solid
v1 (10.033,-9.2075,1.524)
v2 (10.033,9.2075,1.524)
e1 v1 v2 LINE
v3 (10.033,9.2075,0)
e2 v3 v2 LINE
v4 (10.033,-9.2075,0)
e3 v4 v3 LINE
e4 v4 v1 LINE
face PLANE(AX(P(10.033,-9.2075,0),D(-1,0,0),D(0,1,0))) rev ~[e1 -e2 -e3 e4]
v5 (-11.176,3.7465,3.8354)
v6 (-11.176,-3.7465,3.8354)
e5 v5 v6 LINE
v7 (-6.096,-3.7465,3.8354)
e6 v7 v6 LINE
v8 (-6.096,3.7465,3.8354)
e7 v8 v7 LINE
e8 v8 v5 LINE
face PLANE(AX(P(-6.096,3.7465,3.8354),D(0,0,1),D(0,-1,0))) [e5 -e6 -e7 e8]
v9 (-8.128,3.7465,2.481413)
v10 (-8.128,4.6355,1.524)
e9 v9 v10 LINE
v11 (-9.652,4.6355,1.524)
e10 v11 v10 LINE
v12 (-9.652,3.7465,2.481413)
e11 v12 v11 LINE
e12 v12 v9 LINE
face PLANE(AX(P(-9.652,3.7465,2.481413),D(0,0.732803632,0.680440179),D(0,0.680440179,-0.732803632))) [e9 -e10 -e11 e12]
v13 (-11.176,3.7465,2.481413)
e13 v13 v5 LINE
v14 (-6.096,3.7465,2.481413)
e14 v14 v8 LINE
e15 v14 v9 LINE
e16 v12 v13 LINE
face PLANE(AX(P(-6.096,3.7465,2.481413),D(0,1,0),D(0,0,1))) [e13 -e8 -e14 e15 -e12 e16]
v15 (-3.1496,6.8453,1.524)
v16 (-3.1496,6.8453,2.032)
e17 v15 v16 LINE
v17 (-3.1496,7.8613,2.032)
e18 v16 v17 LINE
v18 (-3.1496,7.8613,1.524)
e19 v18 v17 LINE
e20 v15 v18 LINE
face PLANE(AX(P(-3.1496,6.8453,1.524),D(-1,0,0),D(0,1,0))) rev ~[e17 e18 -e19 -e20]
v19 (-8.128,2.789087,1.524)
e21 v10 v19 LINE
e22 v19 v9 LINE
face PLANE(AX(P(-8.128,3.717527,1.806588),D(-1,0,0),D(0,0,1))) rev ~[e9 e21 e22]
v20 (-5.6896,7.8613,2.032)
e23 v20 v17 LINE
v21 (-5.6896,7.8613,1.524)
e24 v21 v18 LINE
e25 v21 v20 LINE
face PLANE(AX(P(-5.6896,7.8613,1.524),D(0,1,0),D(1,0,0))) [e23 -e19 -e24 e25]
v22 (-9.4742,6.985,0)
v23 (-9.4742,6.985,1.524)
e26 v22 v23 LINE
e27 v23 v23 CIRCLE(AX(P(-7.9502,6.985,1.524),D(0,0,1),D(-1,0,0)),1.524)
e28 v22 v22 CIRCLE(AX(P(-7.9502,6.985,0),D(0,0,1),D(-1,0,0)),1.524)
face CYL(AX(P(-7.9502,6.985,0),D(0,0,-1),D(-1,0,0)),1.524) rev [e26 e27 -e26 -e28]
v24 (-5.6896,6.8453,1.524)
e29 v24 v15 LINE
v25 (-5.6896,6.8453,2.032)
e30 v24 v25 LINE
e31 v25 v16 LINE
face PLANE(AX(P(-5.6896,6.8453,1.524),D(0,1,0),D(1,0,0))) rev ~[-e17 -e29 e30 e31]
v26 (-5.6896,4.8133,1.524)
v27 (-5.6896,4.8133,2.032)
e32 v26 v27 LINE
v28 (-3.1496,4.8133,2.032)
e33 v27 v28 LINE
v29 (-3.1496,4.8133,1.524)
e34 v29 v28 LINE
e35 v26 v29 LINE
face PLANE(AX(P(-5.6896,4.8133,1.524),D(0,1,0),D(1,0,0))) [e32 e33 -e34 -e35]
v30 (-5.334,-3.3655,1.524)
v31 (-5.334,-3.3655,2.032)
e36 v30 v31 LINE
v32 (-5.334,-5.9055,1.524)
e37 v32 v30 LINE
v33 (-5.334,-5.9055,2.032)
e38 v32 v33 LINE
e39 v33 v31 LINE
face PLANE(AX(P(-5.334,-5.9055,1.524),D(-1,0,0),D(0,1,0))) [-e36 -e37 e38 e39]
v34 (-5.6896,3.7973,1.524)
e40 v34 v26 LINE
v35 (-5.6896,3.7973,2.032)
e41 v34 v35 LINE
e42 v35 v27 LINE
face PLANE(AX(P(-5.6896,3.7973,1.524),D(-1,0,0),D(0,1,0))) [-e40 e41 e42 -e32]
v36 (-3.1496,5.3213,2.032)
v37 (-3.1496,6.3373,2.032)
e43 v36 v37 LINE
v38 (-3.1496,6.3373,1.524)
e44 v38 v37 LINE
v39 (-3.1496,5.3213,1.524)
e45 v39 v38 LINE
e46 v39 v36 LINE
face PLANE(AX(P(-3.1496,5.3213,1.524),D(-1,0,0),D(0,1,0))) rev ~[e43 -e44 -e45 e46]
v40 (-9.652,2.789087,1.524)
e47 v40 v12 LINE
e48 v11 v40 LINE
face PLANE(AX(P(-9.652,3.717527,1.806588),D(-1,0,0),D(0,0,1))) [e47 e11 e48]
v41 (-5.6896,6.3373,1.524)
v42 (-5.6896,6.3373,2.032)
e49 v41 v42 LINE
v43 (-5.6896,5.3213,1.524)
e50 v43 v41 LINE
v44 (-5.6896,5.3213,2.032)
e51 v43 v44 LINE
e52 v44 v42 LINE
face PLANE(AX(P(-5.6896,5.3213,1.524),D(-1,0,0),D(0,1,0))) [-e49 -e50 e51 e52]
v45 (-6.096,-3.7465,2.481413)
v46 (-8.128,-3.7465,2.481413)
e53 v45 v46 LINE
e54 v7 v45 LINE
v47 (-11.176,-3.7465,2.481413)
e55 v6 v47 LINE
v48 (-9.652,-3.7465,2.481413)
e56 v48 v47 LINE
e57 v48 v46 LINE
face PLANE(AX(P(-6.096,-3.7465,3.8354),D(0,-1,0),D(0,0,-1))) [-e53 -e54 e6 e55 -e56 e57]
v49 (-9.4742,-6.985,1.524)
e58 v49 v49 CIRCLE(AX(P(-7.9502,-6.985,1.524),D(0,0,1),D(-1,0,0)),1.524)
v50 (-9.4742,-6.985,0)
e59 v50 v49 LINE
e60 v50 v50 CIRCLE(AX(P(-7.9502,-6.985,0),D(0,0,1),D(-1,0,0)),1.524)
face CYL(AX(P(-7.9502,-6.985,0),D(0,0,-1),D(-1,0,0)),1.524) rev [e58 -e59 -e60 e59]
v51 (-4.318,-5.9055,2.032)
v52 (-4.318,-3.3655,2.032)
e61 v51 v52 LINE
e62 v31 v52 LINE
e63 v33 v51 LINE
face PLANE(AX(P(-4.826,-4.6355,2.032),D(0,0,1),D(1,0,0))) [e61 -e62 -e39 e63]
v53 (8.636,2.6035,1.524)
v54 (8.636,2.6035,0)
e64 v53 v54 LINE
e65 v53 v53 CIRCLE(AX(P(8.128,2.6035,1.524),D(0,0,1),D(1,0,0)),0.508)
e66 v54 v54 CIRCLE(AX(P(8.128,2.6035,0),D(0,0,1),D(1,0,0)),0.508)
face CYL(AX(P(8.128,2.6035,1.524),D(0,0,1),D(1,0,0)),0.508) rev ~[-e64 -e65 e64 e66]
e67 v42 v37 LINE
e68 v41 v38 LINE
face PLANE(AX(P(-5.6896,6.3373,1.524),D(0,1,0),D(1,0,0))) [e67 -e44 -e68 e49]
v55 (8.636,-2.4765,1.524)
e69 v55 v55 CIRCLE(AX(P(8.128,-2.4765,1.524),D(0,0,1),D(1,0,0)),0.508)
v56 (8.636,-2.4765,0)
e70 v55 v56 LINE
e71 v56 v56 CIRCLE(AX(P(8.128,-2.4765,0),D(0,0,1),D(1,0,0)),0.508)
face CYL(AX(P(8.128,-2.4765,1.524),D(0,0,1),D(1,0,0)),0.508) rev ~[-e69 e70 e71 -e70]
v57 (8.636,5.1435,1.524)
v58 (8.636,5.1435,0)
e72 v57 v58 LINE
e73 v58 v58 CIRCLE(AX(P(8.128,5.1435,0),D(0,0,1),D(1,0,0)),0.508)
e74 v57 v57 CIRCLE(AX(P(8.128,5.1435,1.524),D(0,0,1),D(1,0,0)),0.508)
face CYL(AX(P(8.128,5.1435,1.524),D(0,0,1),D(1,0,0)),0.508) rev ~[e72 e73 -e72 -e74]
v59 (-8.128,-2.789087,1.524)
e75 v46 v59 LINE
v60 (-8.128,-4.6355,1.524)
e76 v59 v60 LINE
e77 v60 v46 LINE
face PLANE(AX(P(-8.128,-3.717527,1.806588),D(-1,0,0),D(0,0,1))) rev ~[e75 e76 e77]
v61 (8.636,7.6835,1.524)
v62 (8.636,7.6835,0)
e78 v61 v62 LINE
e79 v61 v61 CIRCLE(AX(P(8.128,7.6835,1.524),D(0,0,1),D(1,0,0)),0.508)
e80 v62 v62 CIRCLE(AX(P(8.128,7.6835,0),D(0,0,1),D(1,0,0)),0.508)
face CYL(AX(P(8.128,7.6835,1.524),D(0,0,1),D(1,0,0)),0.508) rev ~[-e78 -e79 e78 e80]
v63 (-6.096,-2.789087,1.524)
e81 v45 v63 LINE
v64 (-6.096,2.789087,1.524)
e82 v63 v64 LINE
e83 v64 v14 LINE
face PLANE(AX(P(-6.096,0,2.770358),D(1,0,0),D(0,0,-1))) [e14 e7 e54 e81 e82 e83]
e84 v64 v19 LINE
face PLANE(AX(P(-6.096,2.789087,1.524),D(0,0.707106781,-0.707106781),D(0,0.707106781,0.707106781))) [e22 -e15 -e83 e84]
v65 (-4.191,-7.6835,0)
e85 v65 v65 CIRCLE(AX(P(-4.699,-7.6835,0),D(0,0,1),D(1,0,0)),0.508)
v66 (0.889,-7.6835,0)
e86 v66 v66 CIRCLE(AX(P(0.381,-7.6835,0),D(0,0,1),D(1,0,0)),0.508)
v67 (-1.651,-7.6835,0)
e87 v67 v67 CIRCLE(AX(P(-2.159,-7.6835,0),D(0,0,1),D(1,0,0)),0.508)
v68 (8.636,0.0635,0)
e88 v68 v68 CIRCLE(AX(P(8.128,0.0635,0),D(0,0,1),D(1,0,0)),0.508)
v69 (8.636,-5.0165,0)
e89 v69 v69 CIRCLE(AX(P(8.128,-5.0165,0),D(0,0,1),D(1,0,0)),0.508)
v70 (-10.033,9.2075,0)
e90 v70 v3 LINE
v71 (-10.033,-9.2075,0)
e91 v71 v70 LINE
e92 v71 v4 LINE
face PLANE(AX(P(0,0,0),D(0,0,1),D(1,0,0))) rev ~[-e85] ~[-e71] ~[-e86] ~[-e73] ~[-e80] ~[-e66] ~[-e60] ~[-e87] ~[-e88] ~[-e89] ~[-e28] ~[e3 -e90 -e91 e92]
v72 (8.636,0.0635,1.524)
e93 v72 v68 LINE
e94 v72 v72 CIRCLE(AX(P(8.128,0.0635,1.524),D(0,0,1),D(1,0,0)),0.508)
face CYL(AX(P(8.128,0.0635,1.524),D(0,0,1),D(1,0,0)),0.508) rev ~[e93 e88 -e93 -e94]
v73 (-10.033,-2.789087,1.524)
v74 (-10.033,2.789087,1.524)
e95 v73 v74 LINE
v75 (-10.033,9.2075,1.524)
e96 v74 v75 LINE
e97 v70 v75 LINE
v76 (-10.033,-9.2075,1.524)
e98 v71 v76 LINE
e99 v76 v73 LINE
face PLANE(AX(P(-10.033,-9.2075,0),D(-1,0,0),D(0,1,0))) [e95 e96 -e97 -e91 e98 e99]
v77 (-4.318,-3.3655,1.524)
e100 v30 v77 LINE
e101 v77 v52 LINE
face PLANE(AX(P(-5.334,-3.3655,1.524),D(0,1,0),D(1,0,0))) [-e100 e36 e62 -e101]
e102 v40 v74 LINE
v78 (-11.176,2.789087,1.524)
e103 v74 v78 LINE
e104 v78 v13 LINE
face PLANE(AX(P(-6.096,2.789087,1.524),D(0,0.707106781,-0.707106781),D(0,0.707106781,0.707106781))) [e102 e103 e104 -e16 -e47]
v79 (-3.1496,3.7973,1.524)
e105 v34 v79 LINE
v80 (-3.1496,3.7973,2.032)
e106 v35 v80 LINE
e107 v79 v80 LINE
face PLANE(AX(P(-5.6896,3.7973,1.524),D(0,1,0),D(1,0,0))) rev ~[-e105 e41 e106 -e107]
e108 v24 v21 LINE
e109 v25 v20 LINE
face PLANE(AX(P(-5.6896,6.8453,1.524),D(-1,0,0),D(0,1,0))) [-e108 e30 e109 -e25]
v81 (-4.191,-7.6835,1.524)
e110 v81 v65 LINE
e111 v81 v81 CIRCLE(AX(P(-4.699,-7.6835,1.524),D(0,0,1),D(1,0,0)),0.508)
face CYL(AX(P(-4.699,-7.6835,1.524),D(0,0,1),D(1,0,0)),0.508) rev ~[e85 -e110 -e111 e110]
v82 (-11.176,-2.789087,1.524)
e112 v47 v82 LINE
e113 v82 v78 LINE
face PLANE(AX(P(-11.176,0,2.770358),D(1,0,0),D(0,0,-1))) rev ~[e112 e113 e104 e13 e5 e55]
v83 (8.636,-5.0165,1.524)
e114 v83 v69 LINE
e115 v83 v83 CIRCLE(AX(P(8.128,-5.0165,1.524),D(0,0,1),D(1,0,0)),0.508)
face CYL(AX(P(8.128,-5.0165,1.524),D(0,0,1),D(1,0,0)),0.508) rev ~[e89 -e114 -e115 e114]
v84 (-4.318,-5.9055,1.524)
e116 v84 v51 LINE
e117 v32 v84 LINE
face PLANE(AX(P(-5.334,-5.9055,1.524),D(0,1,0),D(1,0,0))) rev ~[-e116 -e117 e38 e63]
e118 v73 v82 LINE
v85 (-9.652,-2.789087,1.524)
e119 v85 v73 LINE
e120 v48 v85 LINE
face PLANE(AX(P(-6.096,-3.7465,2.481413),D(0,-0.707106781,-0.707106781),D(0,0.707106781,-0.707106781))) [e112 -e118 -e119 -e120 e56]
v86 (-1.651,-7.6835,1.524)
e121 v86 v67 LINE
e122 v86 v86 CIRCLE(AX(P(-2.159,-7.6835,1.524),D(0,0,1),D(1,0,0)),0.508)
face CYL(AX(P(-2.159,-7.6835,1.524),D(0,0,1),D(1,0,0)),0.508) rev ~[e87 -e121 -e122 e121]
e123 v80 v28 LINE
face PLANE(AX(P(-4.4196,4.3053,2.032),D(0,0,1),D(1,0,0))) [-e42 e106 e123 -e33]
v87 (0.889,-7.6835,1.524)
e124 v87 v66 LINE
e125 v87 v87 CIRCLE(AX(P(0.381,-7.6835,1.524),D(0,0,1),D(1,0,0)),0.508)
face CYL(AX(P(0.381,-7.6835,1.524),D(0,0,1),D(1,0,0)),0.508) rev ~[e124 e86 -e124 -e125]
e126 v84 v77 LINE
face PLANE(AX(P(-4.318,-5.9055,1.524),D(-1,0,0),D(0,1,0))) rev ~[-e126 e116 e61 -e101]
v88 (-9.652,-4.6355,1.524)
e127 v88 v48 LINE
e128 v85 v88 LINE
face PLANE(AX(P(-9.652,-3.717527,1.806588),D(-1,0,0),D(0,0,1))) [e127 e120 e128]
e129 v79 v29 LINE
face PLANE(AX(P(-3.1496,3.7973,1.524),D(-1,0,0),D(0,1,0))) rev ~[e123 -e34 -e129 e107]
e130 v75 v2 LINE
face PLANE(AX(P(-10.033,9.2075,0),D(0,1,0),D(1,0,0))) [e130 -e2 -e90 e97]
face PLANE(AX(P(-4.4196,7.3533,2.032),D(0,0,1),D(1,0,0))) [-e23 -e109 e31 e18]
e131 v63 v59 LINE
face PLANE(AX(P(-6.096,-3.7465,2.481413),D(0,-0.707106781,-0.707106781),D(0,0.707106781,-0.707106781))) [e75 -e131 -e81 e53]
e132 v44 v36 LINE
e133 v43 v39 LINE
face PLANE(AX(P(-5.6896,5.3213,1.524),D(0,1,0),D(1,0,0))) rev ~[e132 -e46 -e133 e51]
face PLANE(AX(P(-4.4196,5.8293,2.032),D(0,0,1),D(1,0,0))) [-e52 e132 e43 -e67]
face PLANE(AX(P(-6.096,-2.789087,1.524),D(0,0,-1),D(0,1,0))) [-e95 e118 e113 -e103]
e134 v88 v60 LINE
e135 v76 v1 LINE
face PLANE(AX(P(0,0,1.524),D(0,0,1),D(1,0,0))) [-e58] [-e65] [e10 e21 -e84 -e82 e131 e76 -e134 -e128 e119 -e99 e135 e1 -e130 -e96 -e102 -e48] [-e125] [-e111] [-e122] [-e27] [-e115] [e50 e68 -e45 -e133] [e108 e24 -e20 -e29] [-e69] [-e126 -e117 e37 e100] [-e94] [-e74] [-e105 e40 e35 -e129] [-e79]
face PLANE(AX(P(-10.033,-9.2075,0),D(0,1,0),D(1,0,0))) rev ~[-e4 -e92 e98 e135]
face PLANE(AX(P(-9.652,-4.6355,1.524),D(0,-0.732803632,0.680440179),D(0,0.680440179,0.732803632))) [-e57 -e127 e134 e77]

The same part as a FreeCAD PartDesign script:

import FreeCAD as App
import Part
import Sketcher
from FreeCAD import Vector
Q = App.Units.Quantity


def add_polygon(sketch, points):
    """Adds a closed chain of lines whose ends are joined by coincident constraints."""
    first, n = sketch.GeometryCount, len(points)
    for a, b in zip(points, points[1:] + points[:1]):
        sketch.addGeometry(Part.LineSegment(App.Vector(*a, 0), App.Vector(*b, 0)), False)
    for i in range(n):
        sketch.addConstraint(Sketcher.Constraint("Coincident", first + i, 2, first + (i + 1) % n, 1))

doc = App.newDocument("Part")
body = doc.addObject("PartDesign::Body", "Body")

# Sketch on XY plane
sketch1 = body.newObject("Sketcher::SketchObject", "Sketch")
sketch1.AttachmentSupport = (doc.getObject("XY_Plane"), [""])
sketch1.MapMode = "FlatFace"
add_polygon(sketch1, [(-10, 9.2), (-10, -9.2), (10, -9.2), (10, 9.2)])  # lines 0-3
sketch1.addGeometry(Part.Circle(Vector(-8, -7, 0), Vector(0, 0, 1), 1.5), False)  # 4
sketch1.addGeometry(Part.Circle(Vector(-8, 7, 0), Vector(0, 0, 1), 1.5), False)  # 5
sketch1.addConstraint([
    Sketcher.Constraint("Vertical", 0),
    Sketcher.Constraint("Horizontal", 1),
    Sketcher.Constraint("Vertical", 2),
    Sketcher.Constraint("Horizontal", 3),
    Sketcher.Constraint("Equal", 4, 5),
    Sketcher.Constraint("Symmetric", 0, 2, 2, 2, -1, 1),
    Sketcher.Constraint("Symmetric", 4, 3, 5, 3, -1),
    Sketcher.Constraint("Diameter", 4, Q("0.12 in")),
    Sketcher.Constraint("DistanceX", 1, 1, 1, 2, Q("0.79 in")),
    Sketcher.Constraint("DistanceY", 0, 2, 0, 1, Q("0.725 in")),
    Sketcher.Constraint("DistanceY", 4, 3, 5, 3, Q("0.55 in")),
    Sketcher.Constraint("DistanceX", 4, 3, -1, 1, Q("0.313 in")),
])
pad1 = body.newObject("PartDesign::Pad", "Pad")
pad1.Profile = sketch1
pad1.Length = Q("0.06 in")

# Sketch on YZ plane
sketch2 = body.newObject("Sketcher::SketchObject", "Sketch001")
sketch2.AttachmentSupport = (doc.getObject("YZ_Plane"), [""])
sketch2.MapMode = "FlatFace"
sketch2.AttachmentOffset = App.Placement(Vector(0, 0, -0.395 * 25.4), App.Rotation())
add_polygon(sketch2, [(-3.7, 3.8), (3.7, 3.8), (3.7, 2.5), (2.8, 1.5), (-2.8, 1.5), (-3.7, 2.5)])  # lines 0-5
sketch2.addConstraint([
    Sketcher.Constraint("Horizontal", 0),
    Sketcher.Constraint("Vertical", 1),
    Sketcher.Constraint("Horizontal", 3),
    Sketcher.Constraint("Vertical", 5),
    Sketcher.Constraint("Symmetric", 1, 2, 4, 2, -2),
    Sketcher.Constraint("Perpendicular", 2, 4),
    Sketcher.Constraint("Equal", 2, 4),
    Sketcher.Constraint("DistanceX", 0, 1, 0, 2, Q("0.295 in")),
    Sketcher.Constraint("DistanceY", -1, 1, 2, 2, Q("0.06 in")),
    Sketcher.Constraint("DistanceY", -1, 1, 0, 2, Q("0.151 in")),
    Sketcher.Constraint("DistanceX", 3, 2, 3, 1, Q("5.578174 mm")),
])
pad2 = body.newObject("PartDesign::Pad", "Pad001")
pad2.Profile = sketch2
pad2.Type = "TwoLengths"
pad2.Length = Q("0.045 in")
pad2.Length2 = Q("0.155 in")
pad2.Reversed = True

# Sketch on XY plane
sketch3 = body.newObject("Sketcher::SketchObject", "Sketch002")
sketch3.AttachmentSupport = (doc.getObject("XY_Plane"), [""])
sketch3.MapMode = "FlatFace"
sketch3.AttachmentOffset = App.Placement(Vector(0, 0, 0.06 * 25.4), App.Rotation())
sketch3.addGeometry(Part.Circle(Vector(8.1, 7.7, 0), Vector(0, 0, 1), 0.5), False)
sketch3.addConstraint([
    Sketcher.Constraint("Diameter", 0, Q("0.04 in")),
    Sketcher.Constraint("DistanceX", -1, 1, 0, 3, Q("0.32 in")),
    Sketcher.Constraint("DistanceY", -1, 1, 0, 3, Q("0.3025 in")),
])
pocket1 = body.newObject("PartDesign::Pocket", "Pocket")
pocket1.Profile = sketch3
pocket1.Type = "ThroughAll"
doc.recompute()

linearpattern = body.newObject("PartDesign::LinearPattern", "LinearPattern")
linearpattern.Originals = [pocket1]
linearpattern.Direction = (doc.getObject("Y_Axis"), [""])
linearpattern.Mode = "offset"
linearpattern.Offset = Q("0.1 in")
linearpattern.Occurrences = 6
linearpattern.Reversed = True
body.Tip = linearpattern

# Sketch on XY plane
sketch4 = body.newObject("Sketcher::SketchObject", "Sketch003")
sketch4.AttachmentSupport = (doc.getObject("XY_Plane"), [""])
sketch4.MapMode = "FlatFace"
sketch4.AttachmentOffset = App.Placement(Vector(0, 0, 0.06 * 25.4), App.Rotation())
sketch4.addGeometry(Part.Circle(Vector(-4.7, -7.7, 0), Vector(0, 0, 1), 0.5), False)
sketch4.addConstraint([
    Sketcher.Constraint("Diameter", 0, Q("0.04 in")),
    Sketcher.Constraint("DistanceX", 0, 3, -1, 1, Q("0.185 in")),
    Sketcher.Constraint("DistanceY", 0, 3, -1, 1, Q("0.3025 in")),
])
pocket2 = body.newObject("PartDesign::Pocket", "Pocket001")
pocket2.Profile = sketch4
pocket2.Type = "ThroughAll"
doc.recompute()

linearpattern2 = body.newObject("PartDesign::LinearPattern", "LinearPattern001")
linearpattern2.Originals = [pocket2]
linearpattern2.Direction = (doc.getObject("X_Axis"), [""])
linearpattern2.Mode = "offset"
linearpattern2.Offset = Q("0.1 in")
linearpattern2.Occurrences = 3
body.Tip = linearpattern2

# Sketch on XY plane
sketch5 = body.newObject("Sketcher::SketchObject", "Sketch004")
sketch5.AttachmentSupport = (doc.getObject("XY_Plane"), [""])
sketch5.MapMode = "FlatFace"
sketch5.AttachmentOffset = App.Placement(Vector(0, 0, 0.06 * 25.4), App.Rotation())
add_polygon(sketch5, [(-5.7, 7.9), (-5.7, 6.8), (-3.1, 6.8), (-3.1, 7.9)])  # lines 0-3
add_polygon(sketch5, [(-5.7, 6.3), (-5.7, 5.3), (-3.1, 5.3), (-3.1, 6.3)])  # lines 4-7
add_polygon(sketch5, [(-5.7, 4.8), (-5.7, 3.8), (-3.1, 3.8), (-3.1, 4.8)])  # lines 8-11
add_polygon(sketch5, [(-5.3, -3.4), (-5.3, -5.9), (-4.3, -5.9), (-4.3, -3.4)])  # lines 12-15
sketch5.addConstraint([
    Sketcher.Constraint("Vertical", 0),
    Sketcher.Constraint("Horizontal", 1),
    Sketcher.Constraint("Vertical", 2),
    Sketcher.Constraint("Horizontal", 3),
    Sketcher.Constraint("Vertical", 4),
    Sketcher.Constraint("Horizontal", 5),
    Sketcher.Constraint("Vertical", 6),
    Sketcher.Constraint("Horizontal", 7),
    Sketcher.Constraint("Vertical", 8),
    Sketcher.Constraint("Horizontal", 9),
    Sketcher.Constraint("Vertical", 10),
    Sketcher.Constraint("Horizontal", 11),
    Sketcher.Constraint("Vertical", 12),
    Sketcher.Constraint("Horizontal", 13),
    Sketcher.Constraint("Vertical", 14),
    Sketcher.Constraint("Horizontal", 15),
    Sketcher.Constraint("Vertical", 3, 2, 4, 2),
    Sketcher.Constraint("Vertical", 2, 2, 5, 2),
    Sketcher.Constraint("Vertical", 7, 2, 8, 2),
    Sketcher.Constraint("Vertical", 6, 2, 9, 2),
    Sketcher.Constraint("Equal", 15, 0),
    Sketcher.Constraint("Equal", 2, 4),
    Sketcher.Constraint("Equal", 6, 8),
    Sketcher.Constraint("Equal", 11, 12),
    Sketcher.Constraint("DistanceX", 1, 1, 1, 2, Q("0.1 in")),
    Sketcher.Constraint("DistanceX", 13, 1, 13, 2, Q("0.04 in")),
    Sketcher.Constraint("DistanceY", 4, 2, 3, 2, Q("0.1 in")),
    Sketcher.Constraint("DistanceY", 8, 2, 7, 2, Q("0.1 in")),
    Sketcher.Constraint("DistanceX", 12, 2, -1, 1, Q("0.21 in")),
    Sketcher.Constraint("DistanceX", 0, 2, -1, 1, Q("0.224 in")),
    Sketcher.Constraint("DistanceY", 12, 2, 8, 2, Q("0.382 in")),
    Sketcher.Constraint("DistanceY", -1, 1, 0, 2, Q("0.2695 in")),
])
pad3 = body.newObject("PartDesign::Pad", "Pad002")
pad3.Profile = sketch5
pad3.Length = Q("0.02 in")

# Sketch on YZ plane
sketch6 = body.newObject("Sketcher::SketchObject", "Sketch005")
sketch6.AttachmentSupport = (doc.getObject("YZ_Plane"), [""])
sketch6.MapMode = "FlatFace"
sketch6.AttachmentOffset = App.Placement(Vector(0, 0, -0.38 * 25.4), App.Rotation())
add_polygon(sketch6, [(4.6, 1.5), (2.8, 1.5), (3.7, 2.5)])  # lines 0-2
add_polygon(sketch6, [(-2.8, 1.5), (-4.6, 1.5), (-3.7, 2.5)])  # lines 3-5
sketch6.addConstraint([
    Sketcher.Constraint("Horizontal", 0),
    Sketcher.Constraint("Horizontal", 3),
    Sketcher.Constraint("Symmetric", 2, 2, 3, 2, -2),
    Sketcher.Constraint("Symmetric", 1, 2, 4, 2, -2),
    Sketcher.Constraint("Perpendicular", 1, 5),
    Sketcher.Constraint("Equal", 0, 3),
    Sketcher.Constraint("DistanceY", -1, 1, 0, 2, Q("0.06 in")),
    Sketcher.Constraint("DistanceX", 3, 2, 1, 2, Q("0.33 in")),
    Sketcher.Constraint("DistanceX", 1, 2, 2, 2, Q("0.035 in")),
    Sketcher.Constraint("DistanceX", 0, 2, 0, 1, Q("1.846413 mm")),
])
pad4 = body.newObject("PartDesign::Pad", "Pad003")
pad4.Profile = sketch6
pad4.Length = Q("0.06 in")

doc.recompute()
